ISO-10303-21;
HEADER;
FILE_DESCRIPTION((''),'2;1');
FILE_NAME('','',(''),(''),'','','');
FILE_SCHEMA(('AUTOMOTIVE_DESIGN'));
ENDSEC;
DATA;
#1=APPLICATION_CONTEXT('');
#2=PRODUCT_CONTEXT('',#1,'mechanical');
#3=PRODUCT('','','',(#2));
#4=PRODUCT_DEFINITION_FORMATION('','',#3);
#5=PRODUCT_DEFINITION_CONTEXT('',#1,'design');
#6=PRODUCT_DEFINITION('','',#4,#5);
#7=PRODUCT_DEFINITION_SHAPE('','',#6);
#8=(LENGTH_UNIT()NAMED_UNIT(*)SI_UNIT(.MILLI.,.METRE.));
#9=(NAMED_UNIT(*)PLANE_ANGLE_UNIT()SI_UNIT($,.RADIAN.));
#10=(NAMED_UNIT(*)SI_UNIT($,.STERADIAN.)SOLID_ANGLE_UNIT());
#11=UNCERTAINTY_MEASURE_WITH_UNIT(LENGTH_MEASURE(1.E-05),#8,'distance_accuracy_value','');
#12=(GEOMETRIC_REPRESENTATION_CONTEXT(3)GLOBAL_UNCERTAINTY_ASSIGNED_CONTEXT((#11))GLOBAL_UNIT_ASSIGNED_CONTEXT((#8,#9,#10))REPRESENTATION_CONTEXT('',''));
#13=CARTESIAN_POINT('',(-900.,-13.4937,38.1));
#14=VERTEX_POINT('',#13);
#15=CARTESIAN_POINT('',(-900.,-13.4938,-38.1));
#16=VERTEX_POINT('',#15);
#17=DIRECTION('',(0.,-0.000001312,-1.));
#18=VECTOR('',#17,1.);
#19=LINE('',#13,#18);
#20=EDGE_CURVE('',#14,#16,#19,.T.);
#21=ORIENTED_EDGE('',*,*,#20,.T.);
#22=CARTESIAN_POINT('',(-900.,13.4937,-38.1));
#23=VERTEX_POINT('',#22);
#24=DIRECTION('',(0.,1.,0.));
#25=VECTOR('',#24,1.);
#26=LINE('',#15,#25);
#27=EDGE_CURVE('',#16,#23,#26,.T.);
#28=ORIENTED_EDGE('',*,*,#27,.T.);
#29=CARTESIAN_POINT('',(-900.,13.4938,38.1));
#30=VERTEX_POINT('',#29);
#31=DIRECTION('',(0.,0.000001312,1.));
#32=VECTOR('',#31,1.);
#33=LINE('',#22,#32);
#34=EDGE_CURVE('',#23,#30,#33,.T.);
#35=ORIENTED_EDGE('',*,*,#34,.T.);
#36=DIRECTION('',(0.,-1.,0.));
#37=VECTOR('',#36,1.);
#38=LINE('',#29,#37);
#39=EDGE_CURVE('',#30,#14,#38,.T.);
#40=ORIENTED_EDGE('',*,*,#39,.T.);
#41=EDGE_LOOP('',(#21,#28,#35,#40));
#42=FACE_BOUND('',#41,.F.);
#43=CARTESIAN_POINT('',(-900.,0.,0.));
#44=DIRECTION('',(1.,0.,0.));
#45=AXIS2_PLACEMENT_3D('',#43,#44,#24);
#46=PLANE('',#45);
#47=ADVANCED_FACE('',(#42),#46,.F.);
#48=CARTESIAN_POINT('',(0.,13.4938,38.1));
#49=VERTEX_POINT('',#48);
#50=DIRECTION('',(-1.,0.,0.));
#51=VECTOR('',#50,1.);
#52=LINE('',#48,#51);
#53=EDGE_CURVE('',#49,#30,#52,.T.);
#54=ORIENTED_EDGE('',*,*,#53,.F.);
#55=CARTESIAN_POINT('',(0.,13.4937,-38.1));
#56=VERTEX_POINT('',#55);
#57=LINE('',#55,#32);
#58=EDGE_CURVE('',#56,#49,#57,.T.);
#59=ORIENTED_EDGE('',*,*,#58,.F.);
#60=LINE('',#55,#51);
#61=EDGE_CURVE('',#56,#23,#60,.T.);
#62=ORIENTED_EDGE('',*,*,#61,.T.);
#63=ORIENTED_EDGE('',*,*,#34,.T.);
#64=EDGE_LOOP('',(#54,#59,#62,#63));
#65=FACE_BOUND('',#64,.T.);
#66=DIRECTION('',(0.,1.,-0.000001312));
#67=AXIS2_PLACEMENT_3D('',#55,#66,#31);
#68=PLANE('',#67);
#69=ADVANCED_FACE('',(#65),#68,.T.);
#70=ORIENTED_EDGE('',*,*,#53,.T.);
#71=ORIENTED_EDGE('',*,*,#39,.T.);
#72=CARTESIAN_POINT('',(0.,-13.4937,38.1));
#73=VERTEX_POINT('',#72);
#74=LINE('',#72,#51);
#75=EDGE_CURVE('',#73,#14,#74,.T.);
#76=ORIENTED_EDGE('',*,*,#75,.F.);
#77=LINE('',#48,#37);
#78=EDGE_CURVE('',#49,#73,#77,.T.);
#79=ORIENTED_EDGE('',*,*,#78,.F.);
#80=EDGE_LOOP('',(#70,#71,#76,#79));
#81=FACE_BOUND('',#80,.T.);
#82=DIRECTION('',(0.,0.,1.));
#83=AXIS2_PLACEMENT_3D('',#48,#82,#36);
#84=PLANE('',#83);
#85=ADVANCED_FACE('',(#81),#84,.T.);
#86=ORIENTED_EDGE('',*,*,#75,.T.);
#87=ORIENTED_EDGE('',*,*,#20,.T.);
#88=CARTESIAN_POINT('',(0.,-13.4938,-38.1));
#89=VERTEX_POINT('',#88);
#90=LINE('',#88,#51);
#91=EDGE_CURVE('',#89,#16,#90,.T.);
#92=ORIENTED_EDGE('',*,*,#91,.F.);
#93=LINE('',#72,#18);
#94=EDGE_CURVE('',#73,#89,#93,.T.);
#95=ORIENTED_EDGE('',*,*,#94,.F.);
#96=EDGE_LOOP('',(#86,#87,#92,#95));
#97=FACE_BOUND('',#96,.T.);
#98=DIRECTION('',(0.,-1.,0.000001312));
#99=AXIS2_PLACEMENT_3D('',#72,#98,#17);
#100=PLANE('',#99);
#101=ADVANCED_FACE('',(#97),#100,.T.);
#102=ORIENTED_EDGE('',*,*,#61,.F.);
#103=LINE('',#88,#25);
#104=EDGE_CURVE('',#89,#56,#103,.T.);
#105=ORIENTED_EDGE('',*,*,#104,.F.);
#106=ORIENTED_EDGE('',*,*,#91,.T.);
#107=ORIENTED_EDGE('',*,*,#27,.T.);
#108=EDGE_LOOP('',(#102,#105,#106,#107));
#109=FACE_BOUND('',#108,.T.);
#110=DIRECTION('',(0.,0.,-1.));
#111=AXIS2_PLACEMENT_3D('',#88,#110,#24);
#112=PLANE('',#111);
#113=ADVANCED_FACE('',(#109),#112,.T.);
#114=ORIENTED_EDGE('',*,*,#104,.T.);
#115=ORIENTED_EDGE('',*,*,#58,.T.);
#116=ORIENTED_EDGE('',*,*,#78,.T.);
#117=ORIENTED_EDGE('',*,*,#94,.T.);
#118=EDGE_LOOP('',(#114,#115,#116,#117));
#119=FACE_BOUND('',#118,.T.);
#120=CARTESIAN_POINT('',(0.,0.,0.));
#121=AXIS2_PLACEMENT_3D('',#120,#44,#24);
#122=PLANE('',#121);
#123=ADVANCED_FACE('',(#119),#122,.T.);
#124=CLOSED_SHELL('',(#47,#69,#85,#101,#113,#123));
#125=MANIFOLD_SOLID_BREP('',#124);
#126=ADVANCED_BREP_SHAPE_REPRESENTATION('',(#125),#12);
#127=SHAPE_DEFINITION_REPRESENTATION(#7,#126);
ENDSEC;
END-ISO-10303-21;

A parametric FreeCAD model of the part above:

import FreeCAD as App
import Part
import Sketcher

V = App.Vector
Q = App.Units.Quantity


def add_polygon(sketch, points):
    """Adds a closed chain of lines whose ends are joined by coincident constraints."""
    first, n = sketch.GeometryCount, len(points)
    for a, b in zip(points, points[1:] + points[:1]):
        sketch.addGeometry(Part.LineSegment(App.Vector(*a, 0), App.Vector(*b, 0)), False)
    for i in range(n):
        sketch.addConstraint(Sketcher.Constraint("Coincident", first + i, 2, first + (i + 1) % n, 1))

doc = App.newDocument("Part")
body = doc.addObject("PartDesign::Body", "Body")

sketch1 = body.newObject("Sketcher::SketchObject", "Sketch")
sketch1.AttachmentSupport = (doc.getObject("YZ_Plane"), [""])
sketch1.MapMode = "FlatFace"
add_polygon(sketch1, [(-13, 38), (-13, -38), (13, -38), (13, 38)])
sketch1.addConstraint([
    Sketcher.Constraint("Vertical", 0),
    Sketcher.Constraint("Horizontal", 1),
    Sketcher.Constraint("Vertical", 2),
    Sketcher.Constraint("Horizontal", 3),
    Sketcher.Constraint("Symmetric", 0, 2, 2, 2, -1, 1),
    Sketcher.Constraint("DistanceY", 0, 2, 0, 1, Q("3 in")),
    Sketcher.Constraint("DistanceX", 1, 1, 1, 2, Q("1.0625 in")),
])
pad1 = body.newObject("PartDesign::Pad", "Pad")
pad1.Profile = sketch1
pad1.Length = 900
pad1.Reversed = True

doc.recompute()
